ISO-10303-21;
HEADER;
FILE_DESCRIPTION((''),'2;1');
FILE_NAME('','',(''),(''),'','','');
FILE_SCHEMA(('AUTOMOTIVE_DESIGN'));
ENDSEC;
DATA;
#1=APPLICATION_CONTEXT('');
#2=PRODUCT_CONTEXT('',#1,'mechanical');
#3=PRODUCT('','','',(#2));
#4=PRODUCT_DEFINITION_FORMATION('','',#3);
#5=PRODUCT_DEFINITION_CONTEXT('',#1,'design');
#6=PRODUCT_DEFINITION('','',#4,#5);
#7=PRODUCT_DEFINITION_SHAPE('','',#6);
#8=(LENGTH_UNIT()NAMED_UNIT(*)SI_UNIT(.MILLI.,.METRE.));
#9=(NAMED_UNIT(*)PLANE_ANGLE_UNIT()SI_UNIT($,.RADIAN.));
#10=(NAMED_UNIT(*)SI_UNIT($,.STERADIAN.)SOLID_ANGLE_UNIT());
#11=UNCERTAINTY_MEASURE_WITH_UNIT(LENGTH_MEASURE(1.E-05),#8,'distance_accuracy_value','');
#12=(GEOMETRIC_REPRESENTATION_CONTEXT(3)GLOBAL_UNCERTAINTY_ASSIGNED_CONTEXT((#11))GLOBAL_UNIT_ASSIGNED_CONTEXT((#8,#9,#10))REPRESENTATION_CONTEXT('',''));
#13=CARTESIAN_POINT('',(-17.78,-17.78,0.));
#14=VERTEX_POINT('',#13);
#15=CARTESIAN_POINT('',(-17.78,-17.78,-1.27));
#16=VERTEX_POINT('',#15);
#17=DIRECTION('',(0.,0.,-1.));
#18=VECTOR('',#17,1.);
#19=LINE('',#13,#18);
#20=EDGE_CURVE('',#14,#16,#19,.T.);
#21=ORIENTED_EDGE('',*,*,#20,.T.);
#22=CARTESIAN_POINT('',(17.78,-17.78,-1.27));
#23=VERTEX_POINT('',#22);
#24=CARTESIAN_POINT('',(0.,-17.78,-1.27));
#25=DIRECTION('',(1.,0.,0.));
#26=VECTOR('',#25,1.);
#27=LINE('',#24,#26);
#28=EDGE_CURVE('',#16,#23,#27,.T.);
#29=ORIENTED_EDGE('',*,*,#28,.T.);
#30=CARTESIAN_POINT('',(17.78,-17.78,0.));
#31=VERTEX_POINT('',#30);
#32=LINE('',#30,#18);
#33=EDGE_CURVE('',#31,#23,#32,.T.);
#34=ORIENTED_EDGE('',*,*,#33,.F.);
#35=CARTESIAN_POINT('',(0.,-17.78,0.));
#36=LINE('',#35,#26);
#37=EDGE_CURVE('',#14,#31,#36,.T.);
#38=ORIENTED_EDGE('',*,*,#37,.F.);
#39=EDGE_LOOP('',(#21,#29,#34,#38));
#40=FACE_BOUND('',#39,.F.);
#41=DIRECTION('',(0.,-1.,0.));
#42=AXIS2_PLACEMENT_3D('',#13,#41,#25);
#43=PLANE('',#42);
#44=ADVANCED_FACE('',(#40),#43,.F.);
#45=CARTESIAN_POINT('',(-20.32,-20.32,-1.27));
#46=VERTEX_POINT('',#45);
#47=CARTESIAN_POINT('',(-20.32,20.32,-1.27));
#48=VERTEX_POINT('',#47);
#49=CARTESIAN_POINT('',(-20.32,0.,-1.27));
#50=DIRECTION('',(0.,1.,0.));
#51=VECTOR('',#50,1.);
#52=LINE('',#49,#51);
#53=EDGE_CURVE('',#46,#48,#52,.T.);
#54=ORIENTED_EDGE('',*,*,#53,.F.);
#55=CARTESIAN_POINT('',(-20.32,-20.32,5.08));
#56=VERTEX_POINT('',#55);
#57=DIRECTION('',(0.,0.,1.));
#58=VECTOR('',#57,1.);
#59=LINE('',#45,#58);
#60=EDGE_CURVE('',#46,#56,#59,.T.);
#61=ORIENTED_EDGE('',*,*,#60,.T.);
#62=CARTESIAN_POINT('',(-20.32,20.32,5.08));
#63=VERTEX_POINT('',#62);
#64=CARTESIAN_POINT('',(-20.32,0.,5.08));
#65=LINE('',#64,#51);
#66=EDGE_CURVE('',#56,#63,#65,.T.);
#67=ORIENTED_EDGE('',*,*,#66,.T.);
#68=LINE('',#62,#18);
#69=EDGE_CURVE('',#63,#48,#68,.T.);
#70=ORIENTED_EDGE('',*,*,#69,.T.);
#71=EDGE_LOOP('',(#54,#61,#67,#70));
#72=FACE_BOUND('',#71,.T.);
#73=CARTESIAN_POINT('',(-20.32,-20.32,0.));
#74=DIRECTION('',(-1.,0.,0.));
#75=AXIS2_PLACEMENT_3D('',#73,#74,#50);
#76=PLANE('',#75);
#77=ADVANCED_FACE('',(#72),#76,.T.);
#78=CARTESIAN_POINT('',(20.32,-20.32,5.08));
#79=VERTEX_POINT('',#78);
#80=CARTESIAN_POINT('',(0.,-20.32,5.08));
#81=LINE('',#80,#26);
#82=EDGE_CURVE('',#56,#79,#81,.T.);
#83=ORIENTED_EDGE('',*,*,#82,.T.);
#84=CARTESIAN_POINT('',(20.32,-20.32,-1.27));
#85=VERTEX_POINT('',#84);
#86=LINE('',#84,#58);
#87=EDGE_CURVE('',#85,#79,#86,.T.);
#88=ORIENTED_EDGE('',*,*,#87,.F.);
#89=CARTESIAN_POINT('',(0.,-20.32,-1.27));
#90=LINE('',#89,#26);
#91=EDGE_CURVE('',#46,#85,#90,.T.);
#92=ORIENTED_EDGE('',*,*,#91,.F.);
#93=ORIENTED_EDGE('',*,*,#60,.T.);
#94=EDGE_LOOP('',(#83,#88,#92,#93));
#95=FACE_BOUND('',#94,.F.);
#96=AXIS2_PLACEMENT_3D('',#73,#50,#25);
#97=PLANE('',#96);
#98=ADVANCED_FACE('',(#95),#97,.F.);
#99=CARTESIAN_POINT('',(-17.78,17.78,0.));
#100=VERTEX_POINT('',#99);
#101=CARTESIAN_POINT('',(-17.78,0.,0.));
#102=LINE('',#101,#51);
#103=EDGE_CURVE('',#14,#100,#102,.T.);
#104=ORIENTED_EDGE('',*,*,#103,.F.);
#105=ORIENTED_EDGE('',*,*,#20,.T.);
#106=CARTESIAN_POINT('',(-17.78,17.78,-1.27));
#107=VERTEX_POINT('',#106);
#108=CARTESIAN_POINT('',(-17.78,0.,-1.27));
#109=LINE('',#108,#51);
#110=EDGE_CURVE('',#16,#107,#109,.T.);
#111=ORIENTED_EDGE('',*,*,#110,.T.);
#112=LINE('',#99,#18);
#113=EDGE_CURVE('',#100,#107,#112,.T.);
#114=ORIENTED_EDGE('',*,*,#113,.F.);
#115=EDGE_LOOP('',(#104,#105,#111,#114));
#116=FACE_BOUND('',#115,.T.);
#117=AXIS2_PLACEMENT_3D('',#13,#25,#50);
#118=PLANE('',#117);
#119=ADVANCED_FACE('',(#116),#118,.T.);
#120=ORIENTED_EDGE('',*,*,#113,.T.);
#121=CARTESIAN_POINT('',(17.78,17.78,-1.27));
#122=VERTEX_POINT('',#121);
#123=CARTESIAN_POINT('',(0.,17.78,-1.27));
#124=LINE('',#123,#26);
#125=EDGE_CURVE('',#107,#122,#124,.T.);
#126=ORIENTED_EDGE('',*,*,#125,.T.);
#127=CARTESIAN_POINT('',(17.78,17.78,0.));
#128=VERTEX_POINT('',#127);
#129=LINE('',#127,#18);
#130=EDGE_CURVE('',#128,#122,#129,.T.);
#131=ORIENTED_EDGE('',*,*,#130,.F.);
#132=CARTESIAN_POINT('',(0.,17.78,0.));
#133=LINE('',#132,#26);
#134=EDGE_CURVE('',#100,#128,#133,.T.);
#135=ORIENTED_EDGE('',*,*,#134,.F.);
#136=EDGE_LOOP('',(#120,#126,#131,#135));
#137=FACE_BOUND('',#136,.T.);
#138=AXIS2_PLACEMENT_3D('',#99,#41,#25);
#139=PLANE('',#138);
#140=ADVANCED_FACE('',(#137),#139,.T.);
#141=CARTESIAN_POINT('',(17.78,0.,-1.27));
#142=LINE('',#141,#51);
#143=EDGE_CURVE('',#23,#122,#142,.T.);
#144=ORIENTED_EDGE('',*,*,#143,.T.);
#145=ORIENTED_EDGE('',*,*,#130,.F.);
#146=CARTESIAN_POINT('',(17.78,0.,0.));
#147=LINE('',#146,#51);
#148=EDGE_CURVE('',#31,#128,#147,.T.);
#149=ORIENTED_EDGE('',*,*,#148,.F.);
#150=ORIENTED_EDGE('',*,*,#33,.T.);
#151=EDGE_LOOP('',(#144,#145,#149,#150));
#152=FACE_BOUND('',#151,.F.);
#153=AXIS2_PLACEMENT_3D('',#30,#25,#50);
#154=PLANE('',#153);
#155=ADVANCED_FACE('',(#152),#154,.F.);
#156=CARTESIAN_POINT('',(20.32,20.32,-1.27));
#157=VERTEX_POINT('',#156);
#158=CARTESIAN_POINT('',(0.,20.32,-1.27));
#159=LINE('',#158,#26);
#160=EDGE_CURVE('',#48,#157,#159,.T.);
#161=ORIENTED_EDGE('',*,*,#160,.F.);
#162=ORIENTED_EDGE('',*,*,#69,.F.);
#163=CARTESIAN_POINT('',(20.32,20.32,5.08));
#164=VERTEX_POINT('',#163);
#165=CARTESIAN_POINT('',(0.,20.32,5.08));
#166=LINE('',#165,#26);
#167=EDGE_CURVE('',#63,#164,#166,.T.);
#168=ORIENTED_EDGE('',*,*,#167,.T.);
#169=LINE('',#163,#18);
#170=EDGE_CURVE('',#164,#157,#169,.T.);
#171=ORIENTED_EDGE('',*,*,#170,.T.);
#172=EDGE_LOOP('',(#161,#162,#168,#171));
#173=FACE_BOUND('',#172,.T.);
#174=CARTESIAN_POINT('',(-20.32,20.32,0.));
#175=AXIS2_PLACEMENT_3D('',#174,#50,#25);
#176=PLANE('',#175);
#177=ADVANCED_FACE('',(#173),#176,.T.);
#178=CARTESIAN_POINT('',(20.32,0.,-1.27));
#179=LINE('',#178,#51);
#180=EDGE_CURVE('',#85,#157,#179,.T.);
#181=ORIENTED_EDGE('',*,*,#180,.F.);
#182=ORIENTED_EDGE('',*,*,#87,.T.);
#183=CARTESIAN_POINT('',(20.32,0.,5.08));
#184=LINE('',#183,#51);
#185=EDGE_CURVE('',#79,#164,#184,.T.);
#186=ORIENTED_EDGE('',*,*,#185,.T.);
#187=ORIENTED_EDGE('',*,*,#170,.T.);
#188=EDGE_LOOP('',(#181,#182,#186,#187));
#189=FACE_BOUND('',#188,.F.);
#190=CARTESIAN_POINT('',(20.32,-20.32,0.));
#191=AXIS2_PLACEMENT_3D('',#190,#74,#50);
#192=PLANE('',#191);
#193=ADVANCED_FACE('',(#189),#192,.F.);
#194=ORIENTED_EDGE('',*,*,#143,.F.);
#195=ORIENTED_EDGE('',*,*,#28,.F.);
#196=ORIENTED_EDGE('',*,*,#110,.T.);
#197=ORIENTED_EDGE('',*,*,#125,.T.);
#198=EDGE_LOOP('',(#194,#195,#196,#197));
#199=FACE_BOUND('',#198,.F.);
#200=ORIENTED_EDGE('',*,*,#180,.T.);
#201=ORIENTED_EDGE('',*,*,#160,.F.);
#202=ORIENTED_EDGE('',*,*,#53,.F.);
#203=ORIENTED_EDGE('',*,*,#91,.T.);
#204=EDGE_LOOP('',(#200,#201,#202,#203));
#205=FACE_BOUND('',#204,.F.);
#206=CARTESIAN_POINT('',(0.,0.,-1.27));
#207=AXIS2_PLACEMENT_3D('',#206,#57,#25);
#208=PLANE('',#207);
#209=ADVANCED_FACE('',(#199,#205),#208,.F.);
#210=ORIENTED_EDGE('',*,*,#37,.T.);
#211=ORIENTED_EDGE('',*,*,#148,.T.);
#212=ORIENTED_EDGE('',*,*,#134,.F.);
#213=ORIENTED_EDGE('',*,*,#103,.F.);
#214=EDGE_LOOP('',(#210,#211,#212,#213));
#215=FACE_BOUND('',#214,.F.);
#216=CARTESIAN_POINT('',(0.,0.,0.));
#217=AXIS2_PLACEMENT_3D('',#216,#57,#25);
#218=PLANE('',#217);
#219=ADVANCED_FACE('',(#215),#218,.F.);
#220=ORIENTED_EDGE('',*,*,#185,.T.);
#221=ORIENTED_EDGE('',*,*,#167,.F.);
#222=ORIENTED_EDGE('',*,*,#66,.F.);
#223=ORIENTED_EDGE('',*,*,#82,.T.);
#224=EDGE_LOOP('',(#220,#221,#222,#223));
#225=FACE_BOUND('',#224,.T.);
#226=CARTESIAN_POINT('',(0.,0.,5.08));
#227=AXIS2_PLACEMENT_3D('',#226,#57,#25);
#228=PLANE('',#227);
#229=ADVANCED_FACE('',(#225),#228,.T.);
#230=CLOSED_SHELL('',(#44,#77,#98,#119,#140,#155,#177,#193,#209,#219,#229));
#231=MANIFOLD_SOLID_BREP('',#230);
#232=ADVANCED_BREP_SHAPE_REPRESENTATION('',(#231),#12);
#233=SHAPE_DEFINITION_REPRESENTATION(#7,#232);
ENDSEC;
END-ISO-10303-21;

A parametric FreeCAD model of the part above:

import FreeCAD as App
import Part
import Sketcher
from FreeCAD import Vector
Q = App.Units.Quantity

doc = App.newDocument("Part")
params = doc.addObject("Spreadsheet::Sheet", "Params")
for row, (alias, value) in enumerate([
    ("sketch1_width", "1.6 in"),
    ("sketch1_width2", "1.4 in"),
    ("pad1_length", "0.05 in"),
    ("sketch2_width", "1.6 in"),
    ("pad2_length", "0.2 in"),
], start=1):
    params.set(f"A{row}", alias)
    params.set(f"B{row}", "=" + value)
    params.setAlias(f"B{row}", alias)

body = doc.addObject("PartDesign::Body", "Body")

# Sketch on XY plane
sketch1 = body.newObject("Sketcher::SketchObject", "Sketch")
sketch1.AttachmentSupport = (doc.getObject("XY_Plane"), [""])
sketch1.MapMode = "FlatFace"
sketch1.addGeometry([
    Part.LineSegment(Vector(-20, 20, 0), Vector(-20, -20, 0)),  # 0
    Part.LineSegment(Vector(-20, -20, 0), Vector(20, -20, 0)),  # 1
    Part.LineSegment(Vector(20, -20, 0), Vector(20, 20, 0)),  # 2
    Part.LineSegment(Vector(20, 20, 0), Vector(-20, 20, 0)),  # 3
    Part.LineSegment(Vector(18, -18, 0), Vector(-18, -18, 0)),  # 4
    Part.LineSegment(Vector(-18, -18, 0), Vector(-18, 18, 0)),  # 5
    Part.LineSegment(Vector(-18, 18, 0), Vector(18, 18, 0)),  # 6
    Part.LineSegment(Vector(18, 18, 0), Vector(18, -18, 0)),  # 7
], False)
sketch1.addConstraint([
    Sketcher.Constraint("Coincident", 0, 2, 1, 1),
    Sketcher.Constraint("Coincident", 1, 2, 2, 1),
    Sketcher.Constraint("Coincident", 2, 2, 3, 1),
    Sketcher.Constraint("Coincident", 3, 2, 0, 1),
    Sketcher.Constraint("Coincident", 4, 2, 5, 1),
    Sketcher.Constraint("Coincident", 5, 2, 6, 1),
    Sketcher.Constraint("Coincident", 6, 2, 7, 1),
    Sketcher.Constraint("Coincident", 7, 2, 4, 1),
    Sketcher.Constraint("Vertical", 0),
    Sketcher.Constraint("Horizontal", 1),
    Sketcher.Constraint("Vertical", 2),
    Sketcher.Constraint("Horizontal", 3),
    Sketcher.Constraint("Horizontal", 4),
    Sketcher.Constraint("Vertical", 5),
    Sketcher.Constraint("Horizontal", 6),
    Sketcher.Constraint("Vertical", 7),
    Sketcher.Constraint("Symmetric", 0, 2, 2, 2, -1, 1),
    Sketcher.Constraint("Symmetric", 4, 2, 6, 2, -1, 1),
    Sketcher.Constraint("Equal", 3, 0),
    Sketcher.Constraint("Equal", 6, 5),
    Sketcher.Constraint("DistanceX", 1, 1, 1, 2, Q("1.6 in")),
    Sketcher.Constraint("DistanceX", 4, 2, 4, 1, Q("1.4 in")),
])
sketch1.setExpression("Constraints[20]", "Params.sketch1_width")
sketch1.setExpression("Constraints[21]", "Params.sketch1_width2")
pad1 = body.newObject("PartDesign::Pad", "Pad")
pad1.Profile = sketch1
pad1.setExpression("Length", "Params.pad1_length")
pad1.Reversed = True

# Sketch on XY plane
sketch2 = body.newObject("Sketcher::SketchObject", "Sketch001")
sketch2.AttachmentSupport = (doc.getObject("XY_Plane"), [""])
sketch2.MapMode = "FlatFace"
sketch2.addGeometry([
    Part.LineSegment(Vector(-20, 20, 0), Vector(-20, -20, 0)),
    Part.LineSegment(Vector(-20, -20, 0), Vector(20, -20, 0)),
    Part.LineSegment(Vector(20, -20, 0), Vector(20, 20, 0)),
    Part.LineSegment(Vector(20, 20, 0), Vector(-20, 20, 0)),
], False)
sketch2.addConstraint([
    Sketcher.Constraint("Coincident", 0, 2, 1, 1),
    Sketcher.Constraint("Coincident", 1, 2, 2, 1),
    Sketcher.Constraint("Coincident", 2, 2, 3, 1),
    Sketcher.Constraint("Coincident", 3, 2, 0, 1),
    Sketcher.Constraint("Vertical", 0),
    Sketcher.Constraint("Horizontal", 1),
    Sketcher.Constraint("Vertical", 2),
    Sketcher.Constraint("Horizontal", 3),
    Sketcher.Constraint("Symmetric", 0, 2, 2, 2, -1, 1),
    Sketcher.Constraint("Equal", 3, 0),
    Sketcher.Constraint("DistanceX", 1, 1, 1, 2, Q("1.6 in")),
])
sketch2.setExpression("Constraints[10]", "Params.sketch2_width")
pad2 = body.newObject("PartDesign::Pad", "Pad001")
pad2.Profile = sketch2
pad2.setExpression("Length", "Params.pad2_length")

doc.recompute()
